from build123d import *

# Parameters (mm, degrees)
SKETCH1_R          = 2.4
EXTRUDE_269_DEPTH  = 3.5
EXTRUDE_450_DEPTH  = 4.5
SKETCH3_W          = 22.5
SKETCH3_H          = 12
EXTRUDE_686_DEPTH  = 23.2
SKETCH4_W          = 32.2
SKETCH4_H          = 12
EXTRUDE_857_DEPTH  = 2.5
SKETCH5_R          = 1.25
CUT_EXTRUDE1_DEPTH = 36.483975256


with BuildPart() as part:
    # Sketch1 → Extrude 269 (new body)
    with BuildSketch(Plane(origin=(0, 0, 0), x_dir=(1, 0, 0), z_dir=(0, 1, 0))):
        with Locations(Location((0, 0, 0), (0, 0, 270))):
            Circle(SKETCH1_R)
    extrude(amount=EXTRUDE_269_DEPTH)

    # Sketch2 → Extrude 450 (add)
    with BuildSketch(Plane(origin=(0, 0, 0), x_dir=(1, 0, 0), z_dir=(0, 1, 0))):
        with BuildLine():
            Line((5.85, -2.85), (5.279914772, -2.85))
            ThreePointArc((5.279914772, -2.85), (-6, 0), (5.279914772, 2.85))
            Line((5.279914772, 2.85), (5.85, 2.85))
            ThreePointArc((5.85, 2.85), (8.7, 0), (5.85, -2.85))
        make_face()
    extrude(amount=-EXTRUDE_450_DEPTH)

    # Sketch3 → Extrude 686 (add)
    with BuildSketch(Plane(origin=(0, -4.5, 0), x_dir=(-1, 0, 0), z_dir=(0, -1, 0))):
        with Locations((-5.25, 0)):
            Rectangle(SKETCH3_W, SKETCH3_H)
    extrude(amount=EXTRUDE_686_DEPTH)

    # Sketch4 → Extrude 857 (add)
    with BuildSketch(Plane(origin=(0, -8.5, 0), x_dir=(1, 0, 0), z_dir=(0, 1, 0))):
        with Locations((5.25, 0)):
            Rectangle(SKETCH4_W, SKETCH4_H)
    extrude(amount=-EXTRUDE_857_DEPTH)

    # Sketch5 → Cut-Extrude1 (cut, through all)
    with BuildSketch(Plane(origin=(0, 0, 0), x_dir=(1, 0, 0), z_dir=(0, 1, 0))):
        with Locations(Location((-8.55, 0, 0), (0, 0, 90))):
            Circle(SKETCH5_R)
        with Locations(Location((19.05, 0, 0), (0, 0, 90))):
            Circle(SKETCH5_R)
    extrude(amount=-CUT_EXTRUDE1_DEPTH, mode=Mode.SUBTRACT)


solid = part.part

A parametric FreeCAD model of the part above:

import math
import FreeCAD as App
import Part
import Sketcher
from FreeCAD import Vector


def add_polygon(sketch, points):
    """Adds a closed chain of lines whose ends are joined by coincident constraints."""
    first, n = sketch.GeometryCount, len(points)
    for a, b in zip(points, points[1:] + points[:1]):
        sketch.addGeometry(Part.LineSegment(App.Vector(*a, 0), App.Vector(*b, 0)), False)
    for i in range(n):
        sketch.addConstraint(Sketcher.Constraint("Coincident", first + i, 2, first + (i + 1) % n, 1))

doc = App.newDocument("Part")
params = doc.addObject("Spreadsheet::Sheet", "Params")
for row, (alias, value) in enumerate([
    ("sketch1_diameter", "4.8 mm"),
    ("pad1_length", "3.5 mm"),
    ("sketch2_radius", "6 mm"),
    ("sketch2_radius2", "2.85 mm"),
    ("pad2_length", "4.5 mm"),
    ("sketch3_height", "12 mm"),
    ("sketch3_width", "22.5 mm"),
    ("pad3_length", "23.2 mm"),
    ("sketch4_height", "12 mm"),
    ("sketch4_width", "32.2 mm"),
    ("pad4_length", "2.5 mm"),
    ("sketch5_diameter", "2.5 mm"),
], start=1):
    params.set(f"A{row}", alias)
    params.set(f"B{row}", "=" + value)
    params.setAlias(f"B{row}", alias)

body = doc.addObject("PartDesign::Body", "Body")

sketch1 = body.newObject("Sketcher::SketchObject", "Sketch")
sketch1.AttachmentSupport = (doc.getObject("XZ_Plane"), [""])
sketch1.MapMode = "FlatFace"
sketch1.addGeometry(Part.Circle(Vector(0, 0, 0), Vector(0, 0, 1), 2.4), False)
sketch1.addConstraint([
    Sketcher.Constraint("Coincident", 0, 3, -1, 1),
    Sketcher.Constraint("Diameter", 0, 4.8),
])
sketch1.setExpression("Constraints[1]", "Params.sketch1_diameter")
pad1 = body.newObject("PartDesign::Pad", "Pad")
pad1.Profile = sketch1
pad1.setExpression("Length", "Params.pad1_length")
pad1.Reversed = True

sketch2 = body.newObject("Sketcher::SketchObject", "Sketch001")
sketch2.AttachmentSupport = (doc.getObject("XZ_Plane"), [""])
sketch2.MapMode = "FlatFace"
sketch2.addGeometry([
    Part.LineSegment(Vector(5.3, 2.9, 0), Vector(5.8, 2.9, 0)),
    Part.ArcOfCircle(Part.Circle(Vector(5.8, 0, 0), Vector(0, 0, 1), 2.9), math.radians(-90), math.radians(90)),
    Part.LineSegment(Vector(5.8, -2.9, 0), Vector(5.3, -2.9, 0)),
    Part.ArcOfCircle(Part.Circle(Vector(0, 0, 0), Vector(0, 0, 1), 6), math.radians(28), math.radians(332)),
], False)
sketch2.addConstraint([
    Sketcher.Constraint("Tangent", 0, 2, 1, 2),
    Sketcher.Constraint("Tangent", 1, 1, 2, 1),
    Sketcher.Constraint("Coincident", 2, 2, 3, 2),
    Sketcher.Constraint("Coincident", 3, 1, 0, 1),
    Sketcher.Constraint("Horizontal", 0),
    Sketcher.Constraint("Horizontal", 2),
    Sketcher.Constraint("Coincident", 3, 3, -1, 1),
    Sketcher.Constraint("PointOnObject", 1, 3, -1),
    Sketcher.Constraint("Radius", 3, 6.0),
    Sketcher.Constraint("Radius", 1, 2.85),
    Sketcher.Constraint("DistanceX", -1, 1, 1, 3, 5.85),
])
sketch2.setExpression("Constraints[8]", "Params.sketch2_radius")
sketch2.setExpression("Constraints[9]", "Params.sketch2_radius2")
pad2 = body.newObject("PartDesign::Pad", "Pad001")
pad2.Profile = sketch2
pad2.setExpression("Length", "Params.pad2_length")

sketch3 = body.newObject("Sketcher::SketchObject", "Sketch002")
sketch3.AttachmentSupport = (doc.getObject("XZ_Plane"), [""])
sketch3.MapMode = "FlatFace"
sketch3.AttachmentOffset = App.Placement(Vector(0, 0, 4.5), App.Rotation())
add_polygon(sketch3, [(16, -6), (16, 6), (-6, 6), (-6, -6)])
sketch3.addConstraint([
    Sketcher.Constraint("Vertical", 0),
    Sketcher.Constraint("Horizontal", 1),
    Sketcher.Constraint("Vertical", 2),
    Sketcher.Constraint("Horizontal", 3),
    Sketcher.Constraint("DistanceY", 0, 1, 0, 2, 12.0),
    Sketcher.Constraint("DistanceX", 1, 2, 1, 1, 22.5),
    Sketcher.Constraint("DistanceY", -1, 1, 0, 2, 6.0),
    Sketcher.Constraint("DistanceX", 1, 2, -1, 1, 6.0),
])
sketch3.setExpression("Constraints[8]", "Params.sketch3_height")
sketch3.setExpression("Constraints[9]", "Params.sketch3_width")
pad3 = body.newObject("PartDesign::Pad", "Pad002")
pad3.Profile = sketch3
pad3.setExpression("Length", "Params.pad3_length")

sketch4 = body.newObject("Sketcher::SketchObject", "Sketch003")
sketch4.AttachmentSupport = (doc.getObject("XZ_Plane"), [""])
sketch4.MapMode = "FlatFace"
sketch4.AttachmentOffset = App.Placement(Vector(0, 0, 8.5), App.Rotation())
add_polygon(sketch4, [(-11, -6), (-11, 6), (21, 6), (21, -6)])
sketch4.addConstraint([
    Sketcher.Constraint("Vertical", 0),
    Sketcher.Constraint("Horizontal", 1),
    Sketcher.Constraint("Vertical", 2),
    Sketcher.Constraint("Horizontal", 3),
    Sketcher.Constraint("DistanceY", 0, 1, 0, 2, 12.0),
    Sketcher.Constraint("DistanceX", 1, 1, 1, 2, 32.2),
    Sketcher.Constraint("DistanceY", -1, 1, 0, 2, 6.0),
    Sketcher.Constraint("DistanceX", 0, 2, -1, 1, 10.85),
])
sketch4.setExpression("Constraints[8]", "Params.sketch4_height")
sketch4.setExpression("Constraints[9]", "Params.sketch4_width")
pad4 = body.newObject("PartDesign::Pad", "Pad003")
pad4.Profile = sketch4
pad4.setExpression("Length", "Params.pad4_length")

sketch5 = body.newObject("Sketcher::SketchObject", "Sketch004")
sketch5.AttachmentSupport = (doc.getObject("XZ_Plane"), [""])
sketch5.MapMode = "FlatFace"
sketch5.addGeometry([
    Part.Circle(Vector(-8.6, 0, 0), Vector(0, 0, 1), 1.2),
    Part.Circle(Vector(19.1, 0, 0), Vector(0, 0, 1), 1.2),
], False)
sketch5.addConstraint([
    Sketcher.Constraint("Equal", 0, 1),
    Sketcher.Constraint("PointOnObject", 0, 3, -1),
    Sketcher.Constraint("PointOnObject", 1, 3, -1),
    Sketcher.Constraint("Diameter", 0, 2.5),
    Sketcher.Constraint("DistanceX", 0, 3, 1, 3, 27.6),
    Sketcher.Constraint("DistanceX", 0, 3, -1, 1, 8.55),
])
sketch5.setExpression("Constraints[3]", "Params.sketch5_diameter")
pocket1 = body.newObject("PartDesign::Pocket", "Pocket")
pocket1.Profile = sketch5
pocket1.Type = "ThroughAll"
pocket1.Reversed = True

doc.recompute()
